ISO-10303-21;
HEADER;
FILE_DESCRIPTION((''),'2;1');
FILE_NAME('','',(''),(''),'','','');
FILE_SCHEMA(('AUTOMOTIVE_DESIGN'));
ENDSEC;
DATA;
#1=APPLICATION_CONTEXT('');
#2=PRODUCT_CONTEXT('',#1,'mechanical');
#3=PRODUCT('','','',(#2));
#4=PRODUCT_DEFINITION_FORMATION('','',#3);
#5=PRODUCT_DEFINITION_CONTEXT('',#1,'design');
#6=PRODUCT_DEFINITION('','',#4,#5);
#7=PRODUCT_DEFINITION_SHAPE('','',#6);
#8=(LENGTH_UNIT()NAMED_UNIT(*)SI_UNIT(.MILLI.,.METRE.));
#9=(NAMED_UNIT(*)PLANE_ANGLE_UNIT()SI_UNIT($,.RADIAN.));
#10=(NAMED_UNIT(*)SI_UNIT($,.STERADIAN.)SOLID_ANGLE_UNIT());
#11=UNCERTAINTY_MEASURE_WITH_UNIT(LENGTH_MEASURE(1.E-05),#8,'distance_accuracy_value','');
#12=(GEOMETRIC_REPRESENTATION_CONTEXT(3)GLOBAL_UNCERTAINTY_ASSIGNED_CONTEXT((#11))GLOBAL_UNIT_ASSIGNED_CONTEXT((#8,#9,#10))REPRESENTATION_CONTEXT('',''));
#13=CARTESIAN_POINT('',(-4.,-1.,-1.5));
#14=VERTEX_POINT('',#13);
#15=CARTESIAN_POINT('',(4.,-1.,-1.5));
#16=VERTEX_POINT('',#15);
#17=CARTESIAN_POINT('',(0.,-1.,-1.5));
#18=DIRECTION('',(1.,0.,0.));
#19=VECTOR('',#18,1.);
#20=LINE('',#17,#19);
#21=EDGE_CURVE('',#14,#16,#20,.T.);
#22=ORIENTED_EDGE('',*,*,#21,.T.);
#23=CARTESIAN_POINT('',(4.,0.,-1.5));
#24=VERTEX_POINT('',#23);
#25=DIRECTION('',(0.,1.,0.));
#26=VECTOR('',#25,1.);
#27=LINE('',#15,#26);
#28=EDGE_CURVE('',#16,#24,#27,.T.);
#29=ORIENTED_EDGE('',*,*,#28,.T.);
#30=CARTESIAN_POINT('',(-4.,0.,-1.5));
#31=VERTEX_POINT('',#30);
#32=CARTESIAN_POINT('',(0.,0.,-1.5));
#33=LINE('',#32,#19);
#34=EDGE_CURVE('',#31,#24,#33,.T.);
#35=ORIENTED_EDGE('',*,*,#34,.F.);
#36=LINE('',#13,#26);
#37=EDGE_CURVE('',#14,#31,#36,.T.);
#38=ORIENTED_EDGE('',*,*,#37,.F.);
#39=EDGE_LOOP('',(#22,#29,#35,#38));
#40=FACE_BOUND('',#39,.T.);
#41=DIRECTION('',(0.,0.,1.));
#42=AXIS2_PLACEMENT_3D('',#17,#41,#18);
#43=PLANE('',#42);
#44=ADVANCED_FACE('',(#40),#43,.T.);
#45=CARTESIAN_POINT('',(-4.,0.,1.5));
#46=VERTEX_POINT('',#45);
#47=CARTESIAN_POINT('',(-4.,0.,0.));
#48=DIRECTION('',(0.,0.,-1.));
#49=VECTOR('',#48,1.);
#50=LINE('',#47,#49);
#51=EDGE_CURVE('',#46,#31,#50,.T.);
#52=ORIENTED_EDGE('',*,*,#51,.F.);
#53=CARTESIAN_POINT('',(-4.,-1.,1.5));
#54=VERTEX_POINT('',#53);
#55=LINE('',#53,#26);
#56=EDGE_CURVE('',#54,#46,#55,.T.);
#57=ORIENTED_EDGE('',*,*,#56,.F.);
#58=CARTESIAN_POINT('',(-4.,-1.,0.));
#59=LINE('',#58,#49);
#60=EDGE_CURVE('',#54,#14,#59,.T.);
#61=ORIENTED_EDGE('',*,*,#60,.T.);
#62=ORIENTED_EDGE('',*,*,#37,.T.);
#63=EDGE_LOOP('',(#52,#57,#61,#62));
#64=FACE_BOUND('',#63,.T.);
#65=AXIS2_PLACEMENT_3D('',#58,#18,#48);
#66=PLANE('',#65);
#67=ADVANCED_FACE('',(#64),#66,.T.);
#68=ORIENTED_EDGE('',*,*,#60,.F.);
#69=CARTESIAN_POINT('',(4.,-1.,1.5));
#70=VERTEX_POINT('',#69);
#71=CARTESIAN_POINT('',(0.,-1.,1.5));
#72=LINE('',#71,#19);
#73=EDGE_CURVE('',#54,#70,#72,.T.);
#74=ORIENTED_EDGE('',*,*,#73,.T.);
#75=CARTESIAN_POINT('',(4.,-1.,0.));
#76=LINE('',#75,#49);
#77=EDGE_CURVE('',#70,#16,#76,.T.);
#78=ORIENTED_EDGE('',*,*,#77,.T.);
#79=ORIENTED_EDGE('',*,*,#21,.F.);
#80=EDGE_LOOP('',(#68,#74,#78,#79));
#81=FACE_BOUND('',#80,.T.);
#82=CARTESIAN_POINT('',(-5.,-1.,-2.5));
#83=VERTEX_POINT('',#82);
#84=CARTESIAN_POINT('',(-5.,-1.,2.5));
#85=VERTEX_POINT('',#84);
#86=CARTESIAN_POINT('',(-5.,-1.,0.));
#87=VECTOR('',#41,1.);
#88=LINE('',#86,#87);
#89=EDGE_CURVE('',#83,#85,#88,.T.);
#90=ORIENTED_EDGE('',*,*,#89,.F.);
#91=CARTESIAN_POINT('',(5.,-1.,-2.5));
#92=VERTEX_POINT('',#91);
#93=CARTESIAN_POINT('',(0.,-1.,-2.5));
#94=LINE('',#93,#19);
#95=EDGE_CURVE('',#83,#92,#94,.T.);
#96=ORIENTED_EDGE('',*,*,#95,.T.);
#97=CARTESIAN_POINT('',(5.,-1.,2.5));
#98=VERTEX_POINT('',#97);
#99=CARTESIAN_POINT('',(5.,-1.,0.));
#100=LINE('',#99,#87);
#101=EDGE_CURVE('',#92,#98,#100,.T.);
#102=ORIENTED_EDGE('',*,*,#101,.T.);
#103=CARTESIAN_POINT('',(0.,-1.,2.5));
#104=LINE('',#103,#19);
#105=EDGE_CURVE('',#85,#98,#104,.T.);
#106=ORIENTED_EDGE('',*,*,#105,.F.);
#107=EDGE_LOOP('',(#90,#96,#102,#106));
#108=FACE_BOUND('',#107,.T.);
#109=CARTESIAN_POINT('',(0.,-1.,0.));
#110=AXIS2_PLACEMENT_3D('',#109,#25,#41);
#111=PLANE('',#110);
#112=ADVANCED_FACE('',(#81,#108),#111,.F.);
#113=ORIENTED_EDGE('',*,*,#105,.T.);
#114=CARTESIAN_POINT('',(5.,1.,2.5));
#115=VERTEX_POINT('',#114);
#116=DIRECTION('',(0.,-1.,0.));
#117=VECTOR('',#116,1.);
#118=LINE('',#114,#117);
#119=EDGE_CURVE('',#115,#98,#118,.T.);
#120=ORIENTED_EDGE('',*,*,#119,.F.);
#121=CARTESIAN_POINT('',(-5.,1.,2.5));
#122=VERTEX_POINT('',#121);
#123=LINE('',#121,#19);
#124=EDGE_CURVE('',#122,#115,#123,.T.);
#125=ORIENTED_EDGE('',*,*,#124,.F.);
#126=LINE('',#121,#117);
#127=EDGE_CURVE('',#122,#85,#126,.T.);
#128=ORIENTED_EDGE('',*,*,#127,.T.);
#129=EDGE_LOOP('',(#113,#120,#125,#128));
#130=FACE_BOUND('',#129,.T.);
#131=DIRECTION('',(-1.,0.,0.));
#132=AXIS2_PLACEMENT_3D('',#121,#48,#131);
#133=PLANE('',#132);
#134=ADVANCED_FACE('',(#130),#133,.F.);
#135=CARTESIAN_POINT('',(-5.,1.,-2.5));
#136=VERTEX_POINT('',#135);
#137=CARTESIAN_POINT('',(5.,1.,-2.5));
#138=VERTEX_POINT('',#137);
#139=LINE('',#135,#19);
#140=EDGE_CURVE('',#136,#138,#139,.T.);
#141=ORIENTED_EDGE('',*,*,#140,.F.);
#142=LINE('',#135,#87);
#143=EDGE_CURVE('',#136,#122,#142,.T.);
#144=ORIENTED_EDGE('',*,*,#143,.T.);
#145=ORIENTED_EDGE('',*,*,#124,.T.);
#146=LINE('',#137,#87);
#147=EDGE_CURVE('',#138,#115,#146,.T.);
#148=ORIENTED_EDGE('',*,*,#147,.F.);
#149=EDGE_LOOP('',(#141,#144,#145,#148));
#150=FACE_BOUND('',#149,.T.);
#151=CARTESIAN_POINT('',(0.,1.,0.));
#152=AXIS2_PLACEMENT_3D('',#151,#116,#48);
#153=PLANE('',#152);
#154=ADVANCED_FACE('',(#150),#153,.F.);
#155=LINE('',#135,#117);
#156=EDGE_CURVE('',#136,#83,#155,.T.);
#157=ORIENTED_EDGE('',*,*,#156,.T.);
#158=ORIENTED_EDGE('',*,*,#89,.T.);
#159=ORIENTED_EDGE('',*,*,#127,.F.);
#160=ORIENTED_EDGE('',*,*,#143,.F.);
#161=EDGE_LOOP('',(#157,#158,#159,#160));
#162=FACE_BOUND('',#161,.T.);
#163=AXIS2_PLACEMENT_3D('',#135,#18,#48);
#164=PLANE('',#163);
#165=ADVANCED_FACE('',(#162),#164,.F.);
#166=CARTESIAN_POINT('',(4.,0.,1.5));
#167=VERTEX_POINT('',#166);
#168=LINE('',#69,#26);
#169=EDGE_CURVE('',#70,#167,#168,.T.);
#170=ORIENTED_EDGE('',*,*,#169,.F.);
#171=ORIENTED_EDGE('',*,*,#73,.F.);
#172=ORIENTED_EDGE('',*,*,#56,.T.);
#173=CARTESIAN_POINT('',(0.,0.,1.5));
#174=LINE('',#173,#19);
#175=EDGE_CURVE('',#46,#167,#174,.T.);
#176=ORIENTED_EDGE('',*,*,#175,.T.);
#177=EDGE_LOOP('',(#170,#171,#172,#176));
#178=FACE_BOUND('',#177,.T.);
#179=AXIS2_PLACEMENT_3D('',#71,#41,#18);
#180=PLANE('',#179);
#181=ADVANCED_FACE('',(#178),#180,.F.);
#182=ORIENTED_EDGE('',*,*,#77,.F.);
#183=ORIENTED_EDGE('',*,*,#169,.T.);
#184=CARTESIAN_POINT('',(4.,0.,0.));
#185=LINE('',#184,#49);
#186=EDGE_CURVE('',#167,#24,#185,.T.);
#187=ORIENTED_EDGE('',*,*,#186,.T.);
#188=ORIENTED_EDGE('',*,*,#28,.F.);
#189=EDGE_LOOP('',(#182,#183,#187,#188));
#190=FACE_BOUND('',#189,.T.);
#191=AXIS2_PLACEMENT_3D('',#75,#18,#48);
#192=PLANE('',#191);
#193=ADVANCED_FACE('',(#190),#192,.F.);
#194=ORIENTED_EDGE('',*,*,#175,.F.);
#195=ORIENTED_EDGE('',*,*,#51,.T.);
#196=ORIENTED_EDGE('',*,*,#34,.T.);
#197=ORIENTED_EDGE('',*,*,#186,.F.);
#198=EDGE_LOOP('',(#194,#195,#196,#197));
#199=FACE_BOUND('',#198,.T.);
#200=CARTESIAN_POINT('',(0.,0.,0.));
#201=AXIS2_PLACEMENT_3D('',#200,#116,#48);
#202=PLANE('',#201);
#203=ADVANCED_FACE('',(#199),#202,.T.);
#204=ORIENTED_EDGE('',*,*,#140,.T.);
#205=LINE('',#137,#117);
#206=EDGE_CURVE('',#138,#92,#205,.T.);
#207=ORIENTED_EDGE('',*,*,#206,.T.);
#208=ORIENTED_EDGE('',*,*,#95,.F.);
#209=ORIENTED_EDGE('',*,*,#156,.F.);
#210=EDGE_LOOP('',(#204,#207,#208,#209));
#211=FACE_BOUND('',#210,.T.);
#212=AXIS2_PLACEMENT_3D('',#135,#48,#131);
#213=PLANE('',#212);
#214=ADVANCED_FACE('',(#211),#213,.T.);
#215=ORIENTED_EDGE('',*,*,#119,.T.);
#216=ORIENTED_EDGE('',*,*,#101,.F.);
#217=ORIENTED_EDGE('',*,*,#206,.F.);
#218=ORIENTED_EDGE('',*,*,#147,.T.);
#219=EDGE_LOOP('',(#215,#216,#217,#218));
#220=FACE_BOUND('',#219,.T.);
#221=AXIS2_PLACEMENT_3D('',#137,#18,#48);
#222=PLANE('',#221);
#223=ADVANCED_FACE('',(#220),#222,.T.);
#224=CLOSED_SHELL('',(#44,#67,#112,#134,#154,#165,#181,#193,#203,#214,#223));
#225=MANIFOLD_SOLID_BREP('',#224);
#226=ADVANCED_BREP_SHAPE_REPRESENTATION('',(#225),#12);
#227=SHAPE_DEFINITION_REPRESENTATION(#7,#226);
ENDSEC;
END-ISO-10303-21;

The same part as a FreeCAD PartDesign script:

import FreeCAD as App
import Part
import Sketcher

doc = App.newDocument("Part")
body = doc.addObject("PartDesign::Body", "Body")

sketch1 = body.newObject("Sketcher::SketchObject", "Sketch")
sketch1.AttachmentSupport = (doc.getObject("XZ_Plane"), [""])
sketch1.MapMode = "FlatFace"
sketch1.addGeometry([
    Part.LineSegment(App.Vector(-5, -2, 0), App.Vector(-5, 2, 0)),
    Part.LineSegment(App.Vector(-5, 2, 0), App.Vector(5, 2, 0)),
    Part.LineSegment(App.Vector(5, 2, 0), App.Vector(5, -2, 0)),
    Part.LineSegment(App.Vector(5, -2, 0), App.Vector(-5, -2, 0)),
], False)
sketch1.addConstraint([
    Sketcher.Constraint("Coincident", 0, 2, 1, 1),
    Sketcher.Constraint("Coincident", 1, 2, 2, 1),
    Sketcher.Constraint("Coincident", 2, 2, 3, 1),
    Sketcher.Constraint("Coincident", 3, 2, 0, 1),
    Sketcher.Constraint("Vertical", 0),
    Sketcher.Constraint("Horizontal", 1),
    Sketcher.Constraint("Vertical", 2),
    Sketcher.Constraint("Horizontal", 3),
    Sketcher.Constraint("Symmetric", 0, 2, 2, 2, -1, 1),
    Sketcher.Constraint("DistanceX", 1, 1, 1, 2, 10.0),
    Sketcher.Constraint("DistanceY", 0, 1, 0, 2, 5.0),
])
pad1 = body.newObject("PartDesign::Pad", "Pad")
pad1.Profile = sketch1
pad1.Length = 1
pad1.Reversed = True

sketch2 = body.newObject("Sketcher::SketchObject", "Sketch001")
sketch2.AttachmentSupport = (doc.getObject("XZ_Plane"), [""])
sketch2.MapMode = "FlatFace"
sketch2.addGeometry([
    Part.LineSegment(App.Vector(-5, -2.5, 0), App.Vector(-5, 2.5, 0)),
    Part.LineSegment(App.Vector(-5, 2.5, 0), App.Vector(5, 2.5, 0)),
    Part.LineSegment(App.Vector(5, 2.5, 0), App.Vector(5, -2.5, 0)),
    Part.LineSegment(App.Vector(5, -2.5, 0), App.Vector(-5, -2.5, 0)),
    Part.LineSegment(App.Vector(4, 1.5, 0), App.Vector(-4, 1.5, 0)),
    Part.LineSegment(App.Vector(-4, 1.5, 0), App.Vector(-4, -1.5, 0)),
    Part.LineSegment(App.Vector(-4, -1.5, 0), App.Vector(4, -1.5, 0)),
    Part.LineSegment(App.Vector(4, -1.5, 0), App.Vector(4, 1.5, 0)),
], False)
sketch2.addConstraint([
    Sketcher.Constraint("Coincident", 0, 2, 1, 1),
    Sketcher.Constraint("Coincident", 1, 2, 2, 1),
    Sketcher.Constraint("Coincident", 2, 2, 3, 1),
    Sketcher.Constraint("Coincident", 3, 2, 0, 1),
    Sketcher.Constraint("Coincident", 4, 2, 5, 1),
    Sketcher.Constraint("Coincident", 5, 2, 6, 1),
    Sketcher.Constraint("Coincident", 6, 2, 7, 1),
    Sketcher.Constraint("Coincident", 7, 2, 4, 1),
    Sketcher.Constraint("Vertical", 0),
    Sketcher.Constraint("Horizontal", 1),
    Sketcher.Constraint("Vertical", 2),
    Sketcher.Constraint("Horizontal", 3),
    Sketcher.Constraint("Horizontal", 4),
    Sketcher.Constraint("Vertical", 5),
    Sketcher.Constraint("Horizontal", 6),
    Sketcher.Constraint("Vertical", 7),
    Sketcher.Constraint("Symmetric", 0, 2, 2, 2, -1, 1),
    Sketcher.Constraint("Symmetric", 4, 2, 6, 2, -1, 1),
    Sketcher.Constraint("DistanceX", 1, 1, 1, 2, 10.0),
    Sketcher.Constraint("DistanceX", 4, 2, 4, 1, 8.0),
    Sketcher.Constraint("DistanceY", 0, 1, 0, 2, 5.0),
    Sketcher.Constraint("DistanceY", 5, 2, 5, 1, 3.0),
])
pad2 = body.newObject("PartDesign::Pad", "Pad001")
pad2.Profile = sketch2
pad2.Length = 1

doc.recompute()
